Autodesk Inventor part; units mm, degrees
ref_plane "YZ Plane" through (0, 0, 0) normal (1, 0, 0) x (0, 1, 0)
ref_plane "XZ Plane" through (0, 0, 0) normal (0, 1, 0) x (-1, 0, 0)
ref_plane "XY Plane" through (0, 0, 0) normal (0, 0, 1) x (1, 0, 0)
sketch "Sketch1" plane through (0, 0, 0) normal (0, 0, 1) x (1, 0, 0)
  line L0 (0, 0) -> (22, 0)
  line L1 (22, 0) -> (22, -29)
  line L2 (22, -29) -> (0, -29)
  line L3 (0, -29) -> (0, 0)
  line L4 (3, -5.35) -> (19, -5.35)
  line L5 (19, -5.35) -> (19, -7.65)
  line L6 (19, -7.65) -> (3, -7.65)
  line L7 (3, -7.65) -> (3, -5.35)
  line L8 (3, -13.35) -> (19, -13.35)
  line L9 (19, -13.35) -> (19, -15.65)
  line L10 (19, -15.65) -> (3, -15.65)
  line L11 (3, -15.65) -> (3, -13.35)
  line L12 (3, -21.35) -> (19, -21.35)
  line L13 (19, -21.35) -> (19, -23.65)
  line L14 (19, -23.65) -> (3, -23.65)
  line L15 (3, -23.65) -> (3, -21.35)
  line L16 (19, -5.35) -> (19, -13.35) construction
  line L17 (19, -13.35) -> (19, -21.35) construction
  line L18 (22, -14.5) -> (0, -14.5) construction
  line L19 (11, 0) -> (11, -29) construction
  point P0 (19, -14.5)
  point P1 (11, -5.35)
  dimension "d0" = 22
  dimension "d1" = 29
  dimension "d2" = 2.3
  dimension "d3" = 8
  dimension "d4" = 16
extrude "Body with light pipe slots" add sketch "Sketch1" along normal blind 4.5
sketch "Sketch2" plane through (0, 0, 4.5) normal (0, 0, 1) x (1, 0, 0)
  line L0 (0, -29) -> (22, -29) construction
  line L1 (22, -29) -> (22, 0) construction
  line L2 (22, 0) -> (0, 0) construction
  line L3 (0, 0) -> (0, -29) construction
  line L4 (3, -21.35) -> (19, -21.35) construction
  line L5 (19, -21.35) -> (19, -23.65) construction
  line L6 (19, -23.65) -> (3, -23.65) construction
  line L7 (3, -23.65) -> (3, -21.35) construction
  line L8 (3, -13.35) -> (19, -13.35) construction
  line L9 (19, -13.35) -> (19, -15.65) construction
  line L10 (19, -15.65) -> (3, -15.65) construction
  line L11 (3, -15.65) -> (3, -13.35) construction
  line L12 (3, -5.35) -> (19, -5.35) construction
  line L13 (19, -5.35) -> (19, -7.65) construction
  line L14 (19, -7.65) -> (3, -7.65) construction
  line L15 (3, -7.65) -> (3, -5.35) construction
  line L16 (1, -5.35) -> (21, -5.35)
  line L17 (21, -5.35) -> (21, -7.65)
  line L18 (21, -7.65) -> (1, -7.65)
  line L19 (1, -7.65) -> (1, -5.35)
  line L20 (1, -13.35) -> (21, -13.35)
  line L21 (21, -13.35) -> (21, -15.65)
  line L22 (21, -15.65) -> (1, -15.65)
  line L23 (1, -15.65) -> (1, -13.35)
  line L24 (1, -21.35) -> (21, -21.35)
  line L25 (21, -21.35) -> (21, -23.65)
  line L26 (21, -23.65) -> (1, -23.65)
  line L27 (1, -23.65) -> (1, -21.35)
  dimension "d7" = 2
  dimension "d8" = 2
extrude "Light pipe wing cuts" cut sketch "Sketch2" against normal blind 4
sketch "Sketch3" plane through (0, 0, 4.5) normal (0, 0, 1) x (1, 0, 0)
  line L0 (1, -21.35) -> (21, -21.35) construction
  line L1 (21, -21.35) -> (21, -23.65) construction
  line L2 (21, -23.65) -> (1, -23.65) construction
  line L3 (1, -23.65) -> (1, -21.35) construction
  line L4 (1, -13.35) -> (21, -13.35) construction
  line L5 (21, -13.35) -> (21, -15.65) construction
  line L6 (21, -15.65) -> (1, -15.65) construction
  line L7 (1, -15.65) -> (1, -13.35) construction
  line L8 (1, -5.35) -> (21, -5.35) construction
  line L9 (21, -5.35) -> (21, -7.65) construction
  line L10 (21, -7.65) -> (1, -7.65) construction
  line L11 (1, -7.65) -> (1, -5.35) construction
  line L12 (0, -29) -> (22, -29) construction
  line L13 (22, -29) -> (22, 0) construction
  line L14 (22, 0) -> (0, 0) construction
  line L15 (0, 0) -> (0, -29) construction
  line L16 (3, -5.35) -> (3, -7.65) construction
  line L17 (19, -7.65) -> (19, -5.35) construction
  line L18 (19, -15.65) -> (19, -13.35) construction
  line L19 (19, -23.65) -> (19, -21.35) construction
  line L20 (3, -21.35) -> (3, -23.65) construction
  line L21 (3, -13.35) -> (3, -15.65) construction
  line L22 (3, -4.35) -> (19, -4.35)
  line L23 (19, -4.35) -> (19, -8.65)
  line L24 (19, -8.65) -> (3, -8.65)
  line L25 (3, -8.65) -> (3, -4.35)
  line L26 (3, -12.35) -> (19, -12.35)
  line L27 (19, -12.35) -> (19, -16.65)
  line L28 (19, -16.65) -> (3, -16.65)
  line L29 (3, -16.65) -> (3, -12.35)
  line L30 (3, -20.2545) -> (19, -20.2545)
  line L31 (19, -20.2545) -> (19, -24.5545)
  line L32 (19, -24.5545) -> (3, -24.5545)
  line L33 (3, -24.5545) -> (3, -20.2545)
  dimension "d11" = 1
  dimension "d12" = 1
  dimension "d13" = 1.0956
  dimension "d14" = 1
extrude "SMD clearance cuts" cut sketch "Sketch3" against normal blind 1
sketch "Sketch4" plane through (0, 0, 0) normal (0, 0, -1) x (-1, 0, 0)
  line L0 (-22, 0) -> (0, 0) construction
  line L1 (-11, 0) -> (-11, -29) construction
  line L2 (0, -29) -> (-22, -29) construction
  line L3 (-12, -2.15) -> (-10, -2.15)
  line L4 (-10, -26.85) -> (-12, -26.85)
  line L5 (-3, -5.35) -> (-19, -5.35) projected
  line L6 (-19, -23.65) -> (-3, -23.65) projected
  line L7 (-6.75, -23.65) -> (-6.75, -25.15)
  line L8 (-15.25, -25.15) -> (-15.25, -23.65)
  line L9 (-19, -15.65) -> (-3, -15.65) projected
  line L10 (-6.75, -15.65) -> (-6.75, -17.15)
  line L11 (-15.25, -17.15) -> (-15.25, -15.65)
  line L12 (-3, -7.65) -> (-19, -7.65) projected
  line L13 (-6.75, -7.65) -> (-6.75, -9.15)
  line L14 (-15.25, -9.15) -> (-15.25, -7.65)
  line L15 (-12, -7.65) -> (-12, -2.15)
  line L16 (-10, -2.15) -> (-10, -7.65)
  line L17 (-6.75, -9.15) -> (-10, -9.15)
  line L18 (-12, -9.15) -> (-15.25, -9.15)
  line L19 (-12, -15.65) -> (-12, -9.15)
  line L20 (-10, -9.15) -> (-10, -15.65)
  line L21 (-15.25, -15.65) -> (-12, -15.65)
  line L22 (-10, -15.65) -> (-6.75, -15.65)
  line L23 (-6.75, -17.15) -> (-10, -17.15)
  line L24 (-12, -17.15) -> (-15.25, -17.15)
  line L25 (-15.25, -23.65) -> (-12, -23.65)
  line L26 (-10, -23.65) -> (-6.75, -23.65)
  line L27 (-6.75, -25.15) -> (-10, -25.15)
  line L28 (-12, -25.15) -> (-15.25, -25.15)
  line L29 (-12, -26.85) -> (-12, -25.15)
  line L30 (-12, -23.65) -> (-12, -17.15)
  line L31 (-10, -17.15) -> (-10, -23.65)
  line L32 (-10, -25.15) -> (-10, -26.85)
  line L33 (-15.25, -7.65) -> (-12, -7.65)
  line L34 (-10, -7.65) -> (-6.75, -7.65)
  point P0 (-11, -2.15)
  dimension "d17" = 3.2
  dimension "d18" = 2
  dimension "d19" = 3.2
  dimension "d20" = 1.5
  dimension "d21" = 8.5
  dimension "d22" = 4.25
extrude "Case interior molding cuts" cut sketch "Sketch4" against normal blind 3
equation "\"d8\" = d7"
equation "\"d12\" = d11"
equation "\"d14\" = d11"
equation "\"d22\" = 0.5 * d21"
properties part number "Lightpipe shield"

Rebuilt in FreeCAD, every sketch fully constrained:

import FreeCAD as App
import Part
import Sketcher
from FreeCAD import Vector

doc = App.newDocument("Part")
body = doc.addObject("PartDesign::Body", "Body")

sketch1 = body.newObject("Sketcher::SketchObject", "Sketch")
sketch1.AttachmentSupport = (doc.getObject("XY_Plane"), [""])
sketch1.MapMode = "FlatFace"
sketch1.addGeometry(Part.LineSegment(Vector(22, 0, 0), Vector(0, 0, 0)), False)
sketch1.addGeometry(Part.LineSegment(Vector(0, 0, 0), Vector(0, -29, 0)), False)
sketch1.addGeometry(Part.LineSegment(Vector(0, -29, 0), Vector(22, -29, 0)), False)
sketch1.addGeometry(Part.LineSegment(Vector(22, -29, 0), Vector(22, 0, 0)), False)
sketch1.addGeometry(Part.LineSegment(Vector(3, -23.6, 0), Vector(3, -21.4, 0)), False)
sketch1.addGeometry(Part.LineSegment(Vector(3, -21.4, 0), Vector(19, -21.4, 0)), False)
sketch1.addGeometry(Part.LineSegment(Vector(19, -21.4, 0), Vector(19, -23.6, 0)), False)
sketch1.addGeometry(Part.LineSegment(Vector(19, -23.6, 0), Vector(3, -23.6, 0)), False)
sketch1.addGeometry(Part.LineSegment(Vector(3, -15.7, 0), Vector(3, -13.3, 0)), False)
sketch1.addGeometry(Part.LineSegment(Vector(3, -13.3, 0), Vector(19, -13.3, 0)), False)
sketch1.addGeometry(Part.LineSegment(Vector(19, -13.3, 0), Vector(19, -15.7, 0)), False)
sketch1.addGeometry(Part.LineSegment(Vector(19, -15.7, 0), Vector(3, -15.7, 0)), False)
sketch1.addGeometry(Part.LineSegment(Vector(3, -7.7, 0), Vector(3, -5.3, 0)), False)
sketch1.addGeometry(Part.LineSegment(Vector(3, -5.3, 0), Vector(19, -5.3, 0)), False)
sketch1.addGeometry(Part.LineSegment(Vector(19, -5.3, 0), Vector(19, -7.7, 0)), False)
sketch1.addGeometry(Part.LineSegment(Vector(19, -7.7, 0), Vector(3, -7.7, 0)), False)
sketch1.addConstraint(Sketcher.Constraint("Coincident", 0, 2, 1, 1))
sketch1.addConstraint(Sketcher.Constraint("Coincident", 1, 2, 2, 1))
sketch1.addConstraint(Sketcher.Constraint("Coincident", 2, 2, 3, 1))
sketch1.addConstraint(Sketcher.Constraint("Coincident", 3, 2, 0, 1))
sketch1.addConstraint(Sketcher.Constraint("Coincident", 4, 2, 5, 1))
sketch1.addConstraint(Sketcher.Constraint("Coincident", 5, 2, 6, 1))
sketch1.addConstraint(Sketcher.Constraint("Coincident", 6, 2, 7, 1))
sketch1.addConstraint(Sketcher.Constraint("Coincident", 7, 2, 4, 1))
sketch1.addConstraint(Sketcher.Constraint("Coincident", 8, 2, 9, 1))
sketch1.addConstraint(Sketcher.Constraint("Coincident", 9, 2, 10, 1))
sketch1.addConstraint(Sketcher.Constraint("Coincident", 10, 2, 11, 1))
sketch1.addConstraint(Sketcher.Constraint("Coincident", 11, 2, 8, 1))
sketch1.addConstraint(Sketcher.Constraint("Coincident", 12, 2, 13, 1))
sketch1.addConstraint(Sketcher.Constraint("Coincident", 13, 2, 14, 1))
sketch1.addConstraint(Sketcher.Constraint("Coincident", 14, 2, 15, 1))
sketch1.addConstraint(Sketcher.Constraint("Coincident", 15, 2, 12, 1))
sketch1.addConstraint(Sketcher.Constraint("Horizontal", 0))
sketch1.addConstraint(Sketcher.Constraint("Vertical", 1))
sketch1.addConstraint(Sketcher.Constraint("Horizontal", 2))
sketch1.addConstraint(Sketcher.Constraint("Vertical", 3))
sketch1.addConstraint(Sketcher.Constraint("Vertical", 4))
sketch1.addConstraint(Sketcher.Constraint("Horizontal", 5))
sketch1.addConstraint(Sketcher.Constraint("Vertical", 6))
sketch1.addConstraint(Sketcher.Constraint("Horizontal", 7))
sketch1.addConstraint(Sketcher.Constraint("Vertical", 8))
sketch1.addConstraint(Sketcher.Constraint("Horizontal", 9))
sketch1.addConstraint(Sketcher.Constraint("Vertical", 10))
sketch1.addConstraint(Sketcher.Constraint("Horizontal", 11))
sketch1.addConstraint(Sketcher.Constraint("Vertical", 12))
sketch1.addConstraint(Sketcher.Constraint("Horizontal", 13))
sketch1.addConstraint(Sketcher.Constraint("Vertical", 14))
sketch1.addConstraint(Sketcher.Constraint("Horizontal", 15))
sketch1.addConstraint(Sketcher.Constraint("Coincident", 0, 2, -1, 1))
sketch1.addConstraint(Sketcher.Constraint("Vertical", 7, 2, 8, 2))
sketch1.addConstraint(Sketcher.Constraint("Vertical", 6, 2, 9, 2))
sketch1.addConstraint(Sketcher.Constraint("Vertical", 11, 2, 12, 2))
sketch1.addConstraint(Sketcher.Constraint("Vertical", 10, 2, 13, 2))
sketch1.addConstraint(Sketcher.Constraint("Equal", 6, 8))
sketch1.addConstraint(Sketcher.Constraint("Equal", 10, 12))
sketch1.addConstraint(Sketcher.Constraint("DistanceX", 0, 2, 0, 1, 22.0))
sketch1.addConstraint(Sketcher.Constraint("DistanceX", 5, 1, 5, 2, 16.0))
sketch1.addConstraint(Sketcher.Constraint("DistanceY", 1, 2, 1, 1, 29.0))
sketch1.addConstraint(Sketcher.Constraint("DistanceY", 4, 1, 4, 2, 2.3))
sketch1.addConstraint(Sketcher.Constraint("DistanceY", 4, 2, 8, 2, 8.0))
sketch1.addConstraint(Sketcher.Constraint("DistanceY", 8, 2, 12, 2, 8.0))
sketch1.addConstraint(Sketcher.Constraint("DistanceX", -1, 1, 4, 2, 3.0))
sketch1.addConstraint(Sketcher.Constraint("DistanceY", 4, 2, -1, 1, 21.35))
pad1 = body.newObject("PartDesign::Pad", "Pad")
pad1.Profile = sketch1
pad1.Length = 4.5

sketch2 = body.newObject("Sketcher::SketchObject", "Sketch001")
sketch2.AttachmentSupport = (doc.getObject("XY_Plane"), [""])
sketch2.MapMode = "FlatFace"
sketch2.AttachmentOffset = App.Placement(Vector(0, 0, 4.5), App.Rotation())
sketch2.addGeometry(Part.LineSegment(Vector(21, -5.3, 0), Vector(1, -5.3, 0)), False)
sketch2.addGeometry(Part.LineSegment(Vector(1, -5.3, 0), Vector(1, -7.7, 0)), False)
sketch2.addGeometry(Part.LineSegment(Vector(1, -7.7, 0), Vector(21, -7.7, 0)), False)
sketch2.addGeometry(Part.LineSegment(Vector(21, -7.7, 0), Vector(21, -5.3, 0)), False)
sketch2.addGeometry(Part.LineSegment(Vector(21, -13.3, 0), Vector(1, -13.3, 0)), False)
sketch2.addGeometry(Part.LineSegment(Vector(1, -13.3, 0), Vector(1, -15.7, 0)), False)
sketch2.addGeometry(Part.LineSegment(Vector(1, -15.7, 0), Vector(21, -15.7, 0)), False)
sketch2.addGeometry(Part.LineSegment(Vector(21, -15.7, 0), Vector(21, -13.3, 0)), False)
sketch2.addGeometry(Part.LineSegment(Vector(21, -21.4, 0), Vector(1, -21.4, 0)), False)
sketch2.addGeometry(Part.LineSegment(Vector(1, -21.4, 0), Vector(1, -23.6, 0)), False)
sketch2.addGeometry(Part.LineSegment(Vector(1, -23.6, 0), Vector(21, -23.6, 0)), False)
sketch2.addGeometry(Part.LineSegment(Vector(21, -23.6, 0), Vector(21, -21.4, 0)), False)
sketch2.addConstraint(Sketcher.Constraint("Coincident", 0, 2, 1, 1))
sketch2.addConstraint(Sketcher.Constraint("Coincident", 1, 2, 2, 1))
sketch2.addConstraint(Sketcher.Constraint("Coincident", 2, 2, 3, 1))
sketch2.addConstraint(Sketcher.Constraint("Coincident", 3, 2, 0, 1))
sketch2.addConstraint(Sketcher.Constraint("Coincident", 4, 2, 5, 1))
sketch2.addConstraint(Sketcher.Constraint("Coincident", 5, 2, 6, 1))
sketch2.addConstraint(Sketcher.Constraint("Coincident", 6, 2, 7, 1))
sketch2.addConstraint(Sketcher.Constraint("Coincident", 7, 2, 4, 1))
sketch2.addConstraint(Sketcher.Constraint("Coincident", 8, 2, 9, 1))
sketch2.addConstraint(Sketcher.Constraint("Coincident", 9, 2, 10, 1))
sketch2.addConstraint(Sketcher.Constraint("Coincident", 10, 2, 11, 1))
sketch2.addConstraint(Sketcher.Constraint("Coincident", 11, 2, 8, 1))
sketch2.addConstraint(Sketcher.Constraint("Horizontal", 0))
sketch2.addConstraint(Sketcher.Constraint("Vertical", 1))
sketch2.addConstraint(Sketcher.Constraint("Horizontal", 2))
sketch2.addConstraint(Sketcher.Constraint("Vertical", 3))
sketch2.addConstraint(Sketcher.Constraint("Horizontal", 4))
sketch2.addConstraint(Sketcher.Constraint("Vertical", 5))
sketch2.addConstraint(Sketcher.Constraint("Horizontal", 6))
sketch2.addConstraint(Sketcher.Constraint("Vertical", 7))
sketch2.addConstraint(Sketcher.Constraint("Horizontal", 8))
sketch2.addConstraint(Sketcher.Constraint("Vertical", 9))
sketch2.addConstraint(Sketcher.Constraint("Horizontal", 10))
sketch2.addConstraint(Sketcher.Constraint("Vertical", 11))
sketch2.addConstraint(Sketcher.Constraint("Vertical", 1, 2, 4, 2))
sketch2.addConstraint(Sketcher.Constraint("Vertical", 3, 2, 6, 2))
sketch2.addConstraint(Sketcher.Constraint("Vertical", 5, 2, 8, 2))
sketch2.addConstraint(Sketcher.Constraint("Vertical", 7, 2, 10, 2))
sketch2.addConstraint(Sketcher.Constraint("Equal", 3, 5))
sketch2.addConstraint(Sketcher.Constraint("Equal", 7, 9))
sketch2.addConstraint(Sketcher.Constraint("DistanceX", 0, 2, 0, 1, 20.0))
sketch2.addConstraint(Sketcher.Constraint("DistanceY", 1, 2, 1, 1, 2.3))
sketch2.addConstraint(Sketcher.Constraint("DistanceX", -1, 1, 0, 2, 1.0))
sketch2.addConstraint(Sketcher.Constraint("DistanceY", 4, 2, 0, 2, 8.0))
sketch2.addConstraint(Sketcher.Constraint("DistanceY", 8, 2, 4, 2, 8.0))
sketch2.addConstraint(Sketcher.Constraint("DistanceY", 0, 2, -1, 1, 5.35))
pocket1 = body.newObject("PartDesign::Pocket", "Pocket")
pocket1.Profile = sketch2
pocket1.Length = 4

sketch3 = body.newObject("Sketcher::SketchObject", "Sketch002")
sketch3.AttachmentSupport = (doc.getObject("XY_Plane"), [""])
sketch3.MapMode = "FlatFace"
sketch3.AttachmentOffset = App.Placement(Vector(0, 0, 4.5), App.Rotation())
sketch3.addGeometry(Part.LineSegment(Vector(19, -4.3, 0), Vector(3, -4.3, 0)), False)
sketch3.addGeometry(Part.LineSegment(Vector(3, -4.3, 0), Vector(3, -8.7, 0)), False)
sketch3.addGeometry(Part.LineSegment(Vector(3, -8.7, 0), Vector(19, -8.7, 0)), False)
sketch3.addGeometry(Part.LineSegment(Vector(19, -8.7, 0), Vector(19, -4.3, 0)), False)
sketch3.addGeometry(Part.LineSegment(Vector(19, -12.3, 0), Vector(3, -12.3, 0)), False)
sketch3.addGeometry(Part.LineSegment(Vector(3, -12.3, 0), Vector(3, -16.6, 0)), False)
sketch3.addGeometry(Part.LineSegment(Vector(3, -16.6, 0), Vector(19, -16.6, 0)), False)
sketch3.addGeometry(Part.LineSegment(Vector(19, -16.6, 0), Vector(19, -12.3, 0)), False)
sketch3.addGeometry(Part.LineSegment(Vector(19, -20.3, 0), Vector(3, -20.3, 0)), False)
sketch3.addGeometry(Part.LineSegment(Vector(3, -20.3, 0), Vector(3, -24.6, 0)), False)
sketch3.addGeometry(Part.LineSegment(Vector(3, -24.6, 0), Vector(19, -24.6, 0)), False)
sketch3.addGeometry(Part.LineSegment(Vector(19, -24.6, 0), Vector(19, -20.3, 0)), False)
sketch3.addConstraint(Sketcher.Constraint("Coincident", 0, 2, 1, 1))
sketch3.addConstraint(Sketcher.Constraint("Coincident", 1, 2, 2, 1))
sketch3.addConstraint(Sketcher.Constraint("Coincident", 2, 2, 3, 1))
sketch3.addConstraint(Sketcher.Constraint("Coincident", 3, 2, 0, 1))
sketch3.addConstraint(Sketcher.Constraint("Coincident", 4, 2, 5, 1))
sketch3.addConstraint(Sketcher.Constraint("Coincident", 5, 2, 6, 1))
sketch3.addConstraint(Sketcher.Constraint("Coincident", 6, 2, 7, 1))
sketch3.addConstraint(Sketcher.Constraint("Coincident", 7, 2, 4, 1))
sketch3.addConstraint(Sketcher.Constraint("Coincident", 8, 2, 9, 1))
sketch3.addConstraint(Sketcher.Constraint("Coincident", 9, 2, 10, 1))
sketch3.addConstraint(Sketcher.Constraint("Coincident", 10, 2, 11, 1))
sketch3.addConstraint(Sketcher.Constraint("Coincident", 11, 2, 8, 1))
sketch3.addConstraint(Sketcher.Constraint("Horizontal", 0))
sketch3.addConstraint(Sketcher.Constraint("Vertical", 1))
sketch3.addConstraint(Sketcher.Constraint("Horizontal", 2))
sketch3.addConstraint(Sketcher.Constraint("Vertical", 3))
sketch3.addConstraint(Sketcher.Constraint("Horizontal", 4))
sketch3.addConstraint(Sketcher.Constraint("Vertical", 5))
sketch3.addConstraint(Sketcher.Constraint("Horizontal", 6))
sketch3.addConstraint(Sketcher.Constraint("Vertical", 7))
sketch3.addConstraint(Sketcher.Constraint("Horizontal", 8))
sketch3.addConstraint(Sketcher.Constraint("Vertical", 9))
sketch3.addConstraint(Sketcher.Constraint("Horizontal", 10))
sketch3.addConstraint(Sketcher.Constraint("Vertical", 11))
sketch3.addConstraint(Sketcher.Constraint("Vertical", 1, 2, 4, 2))
sketch3.addConstraint(Sketcher.Constraint("Vertical", 3, 2, 6, 2))
sketch3.addConstraint(Sketcher.Constraint("Vertical", 5, 2, 8, 2))
sketch3.addConstraint(Sketcher.Constraint("Vertical", 7, 2, 10, 2))
sketch3.addConstraint(Sketcher.Constraint("Equal", 3, 5))
sketch3.addConstraint(Sketcher.Constraint("Equal", 7, 9))
sketch3.addConstraint(Sketcher.Constraint("DistanceX", 0, 2, 0, 1, 16.0))
sketch3.addConstraint(Sketcher.Constraint("DistanceY", 1, 2, 1, 1, 4.3))
sketch3.addConstraint(Sketcher.Constraint("DistanceX", -1, 1, 0, 2, 3.0))
sketch3.addConstraint(Sketcher.Constraint("DistanceY", 4, 2, 0, 2, 8.0))
sketch3.addConstraint(Sketcher.Constraint("DistanceY", 0, 2, -1, 1, 4.35))
sketch3.addConstraint(Sketcher.Constraint("DistanceY", 8, 2, -1, 1, 20.2545))
pocket2 = body.newObject("PartDesign::Pocket", "Pocket001")
pocket2.Profile = sketch3
pocket2.Length = 1

sketch4 = body.newObject("Sketcher::SketchObject", "Sketch003")
sketch4.AttachmentSupport = (doc.getObject("XY_Plane"), [""])
sketch4.MapMode = "FlatFace"
sketch4.addGeometry(Part.LineSegment(Vector(10, -2.1, 0), Vector(12, -2.1, 0)), False)
sketch4.addGeometry(Part.LineSegment(Vector(12, -2.1, 0), Vector(12, -7.7, 0)), False)
sketch4.addGeometry(Part.LineSegment(Vector(12, -7.7, 0), Vector(15.2, -7.7, 0)), False)
sketch4.addGeometry(Part.LineSegment(Vector(15.2, -7.7, 0), Vector(15.2, -9.2, 0)), False)
sketch4.addGeometry(Part.LineSegment(Vector(15.2, -9.2, 0), Vector(12, -9.2, 0)), False)
sketch4.addGeometry(Part.LineSegment(Vector(12, -9.2, 0), Vector(12, -15.7, 0)), False)
sketch4.addGeometry(Part.LineSegment(Vector(12, -15.7, 0), Vector(15.2, -15.7, 0)), False)
sketch4.addGeometry(Part.LineSegment(Vector(15.2, -15.7, 0), Vector(15.2, -17.1, 0)), False)
sketch4.addGeometry(Part.LineSegment(Vector(15.2, -17.1, 0), Vector(12, -17.1, 0)), False)
sketch4.addGeometry(Part.LineSegment(Vector(12, -17.1, 0), Vector(12, -23.6, 0)), False)
sketch4.addGeometry(Part.LineSegment(Vector(12, -23.6, 0), Vector(15.2, -23.6, 0)), False)
sketch4.addGeometry(Part.LineSegment(Vector(15.2, -23.6, 0), Vector(15.2, -25.1, 0)), False)
sketch4.addGeometry(Part.LineSegment(Vector(15.2, -25.1, 0), Vector(12, -25.1, 0)), False)
sketch4.addGeometry(Part.LineSegment(Vector(12, -25.1, 0), Vector(12, -26.9, 0)), False)
sketch4.addGeometry(Part.LineSegment(Vector(12, -26.9, 0), Vector(10, -26.9, 0)), False)
sketch4.addGeometry(Part.LineSegment(Vector(10, -26.9, 0), Vector(10, -25.1, 0)), False)
sketch4.addGeometry(Part.LineSegment(Vector(10, -25.1, 0), Vector(6.8, -25.1, 0)), False)
sketch4.addGeometry(Part.LineSegment(Vector(6.8, -25.1, 0), Vector(6.8, -23.6, 0)), False)
sketch4.addGeometry(Part.LineSegment(Vector(6.8, -23.6, 0), Vector(10, -23.6, 0)), False)
sketch4.addGeometry(Part.LineSegment(Vector(10, -23.6, 0), Vector(10, -17.1, 0)), False)
sketch4.addGeometry(Part.LineSegment(Vector(10, -17.1, 0), Vector(6.8, -17.1, 0)), False)
sketch4.addGeometry(Part.LineSegment(Vector(6.8, -17.1, 0), Vector(6.8, -15.7, 0)), False)
sketch4.addGeometry(Part.LineSegment(Vector(6.8, -15.7, 0), Vector(10, -15.7, 0)), False)
sketch4.addGeometry(Part.LineSegment(Vector(10, -15.7, 0), Vector(10, -9.2, 0)), False)
sketch4.addGeometry(Part.LineSegment(Vector(10, -9.2, 0), Vector(6.8, -9.2, 0)), False)
sketch4.addGeometry(Part.LineSegment(Vector(6.8, -9.2, 0), Vector(6.8, -7.7, 0)), False)
sketch4.addGeometry(Part.LineSegment(Vector(6.8, -7.7, 0), Vector(10, -7.7, 0)), False)
sketch4.addGeometry(Part.LineSegment(Vector(10, -7.7, 0), Vector(10, -2.1, 0)), False)
sketch4.addConstraint(Sketcher.Constraint("Coincident", 0, 2, 1, 1))
sketch4.addConstraint(Sketcher.Constraint("Coincident", 1, 2, 2, 1))
sketch4.addConstraint(Sketcher.Constraint("Coincident", 2, 2, 3, 1))
sketch4.addConstraint(Sketcher.Constraint("Coincident", 3, 2, 4, 1))
sketch4.addConstraint(Sketcher.Constraint("Coincident", 4, 2, 5, 1))
sketch4.addConstraint(Sketcher.Constraint("Coincident", 5, 2, 6, 1))
sketch4.addConstraint(Sketcher.Constraint("Coincident", 6, 2, 7, 1))
sketch4.addConstraint(Sketcher.Constraint("Coincident", 7, 2, 8, 1))
sketch4.addConstraint(Sketcher.Constraint("Coincident", 8, 2, 9, 1))
sketch4.addConstraint(Sketcher.Constraint("Coincident", 9, 2, 10, 1))
sketch4.addConstraint(Sketcher.Constraint("Coincident", 10, 2, 11, 1))
sketch4.addConstraint(Sketcher.Constraint("Coincident", 11, 2, 12, 1))
sketch4.addConstraint(Sketcher.Constraint("Coincident", 12, 2, 13, 1))
sketch4.addConstraint(Sketcher.Constraint("Coincident", 13, 2, 14, 1))
sketch4.addConstraint(Sketcher.Constraint("Coincident", 14, 2, 15, 1))
sketch4.addConstraint(Sketcher.Constraint("Coincident", 15, 2, 16, 1))
sketch4.addConstraint(Sketcher.Constraint("Coincident", 16, 2, 17, 1))
sketch4.addConstraint(Sketcher.Constraint("Coincident", 17, 2, 18, 1))
sketch4.addConstraint(Sketcher.Constraint("Coincident", 18, 2, 19, 1))
sketch4.addConstraint(Sketcher.Constraint("Coincident", 19, 2, 20, 1))
sketch4.addConstraint(Sketcher.Constraint("Coincident", 20, 2, 21, 1))
sketch4.addConstraint(Sketcher.Constraint("Coincident", 21, 2, 22, 1))
sketch4.addConstraint(Sketcher.Constraint("Coincident", 22, 2, 23, 1))
sketch4.addConstraint(Sketcher.Constraint("Coincident", 23, 2, 24, 1))
sketch4.addConstraint(Sketcher.Constraint("Coincident", 24, 2, 25, 1))
sketch4.addConstraint(Sketcher.Constraint("Coincident", 25, 2, 26, 1))
sketch4.addConstraint(Sketcher.Constraint("Coincident", 26, 2, 27, 1))
sketch4.addConstraint(Sketcher.Constraint("Coincident", 27, 2, 0, 1))
sketch4.addConstraint(Sketcher.Constraint("Horizontal", 0))
sketch4.addConstraint(Sketcher.Constraint("Vertical", 1))
sketch4.addConstraint(Sketcher.Constraint("Horizontal", 2))
sketch4.addConstraint(Sketcher.Constraint("Vertical", 3))
sketch4.addConstraint(Sketcher.Constraint("Horizontal", 4))
sketch4.addConstraint(Sketcher.Constraint("Vertical", 5))
sketch4.addConstraint(Sketcher.Constraint("Horizontal", 6))
sketch4.addConstraint(Sketcher.Constraint("Vertical", 7))
sketch4.addConstraint(Sketcher.Constraint("Horizontal", 8))
sketch4.addConstraint(Sketcher.Constraint("Vertical", 9))
sketch4.addConstraint(Sketcher.Constraint("Horizontal", 10))
sketch4.addConstraint(Sketcher.Constraint("Vertical", 11))
sketch4.addConstraint(Sketcher.Constraint("Horizontal", 12))
sketch4.addConstraint(Sketcher.Constraint("Vertical", 13))
sketch4.addConstraint(Sketcher.Constraint("Horizontal", 14))
sketch4.addConstraint(Sketcher.Constraint("Vertical", 15))
sketch4.addConstraint(Sketcher.Constraint("Horizontal", 16))
sketch4.addConstraint(Sketcher.Constraint("Vertical", 17))
sketch4.addConstraint(Sketcher.Constraint("Horizontal", 18))
sketch4.addConstraint(Sketcher.Constraint("Vertical", 19))
sketch4.addConstraint(Sketcher.Constraint("Horizontal", 20))
sketch4.addConstraint(Sketcher.Constraint("Vertical", 21))
sketch4.addConstraint(Sketcher.Constraint("Horizontal", 22))
sketch4.addConstraint(Sketcher.Constraint("Vertical", 23))
sketch4.addConstraint(Sketcher.Constraint("Horizontal", 24))
sketch4.addConstraint(Sketcher.Constraint("Vertical", 25))
sketch4.addConstraint(Sketcher.Constraint("Horizontal", 26))
sketch4.addConstraint(Sketcher.Constraint("Vertical", 27))
sketch4.addConstraint(Sketcher.Constraint("Horizontal", 12, 2, 15, 2))
sketch4.addConstraint(Sketcher.Constraint("Horizontal", 10, 2, 17, 2))
sketch4.addConstraint(Sketcher.Constraint("Horizontal", 8, 2, 19, 2))
sketch4.addConstraint(Sketcher.Constraint("Horizontal", 6, 2, 21, 2))
sketch4.addConstraint(Sketcher.Constraint("Horizontal", 4, 2, 23, 2))
sketch4.addConstraint(Sketcher.Constraint("Horizontal", 2, 2, 25, 2))
sketch4.addConstraint(Sketcher.Constraint("Vertical", 1, 2, 4, 2))
sketch4.addConstraint(Sketcher.Constraint("Vertical", 3, 2, 6, 2))
sketch4.addConstraint(Sketcher.Constraint("Vertical", 5, 2, 8, 2))
sketch4.addConstraint(Sketcher.Constraint("Vertical", 7, 2, 10, 2))
sketch4.addConstraint(Sketcher.Constraint("Vertical", 9, 2, 12, 2))
sketch4.addConstraint(Sketcher.Constraint("Vertical", 15, 2, 18, 2))
sketch4.addConstraint(Sketcher.Constraint("Vertical", 17, 2, 20, 2))
sketch4.addConstraint(Sketcher.Constraint("Vertical", 19, 2, 22, 2))
sketch4.addConstraint(Sketcher.Constraint("Vertical", 21, 2, 24, 2))
sketch4.addConstraint(Sketcher.Constraint("Vertical", 23, 2, 26, 2))
sketch4.addConstraint(Sketcher.Constraint("Equal", 12, 16))
sketch4.addConstraint(Sketcher.Constraint("Equal", 3, 7))
sketch4.addConstraint(Sketcher.Constraint("Equal", 5, 9))
sketch4.addConstraint(Sketcher.Constraint("Equal", 7, 11))
sketch4.addConstraint(Sketcher.Constraint("DistanceX", 0, 1, 0, 2, 2.0))
sketch4.addConstraint(Sketcher.Constraint("DistanceY", 3, 2, 3, 1, 1.5))
sketch4.addConstraint(Sketcher.Constraint("DistanceY", 13, 2, 9, 2, 3.2))
sketch4.addConstraint(Sketcher.Constraint("DistanceY", 1, 2, 1, 1, 5.5))
sketch4.addConstraint(Sketcher.Constraint("DistanceY", 5, 2, 5, 1, 6.5))
sketch4.addConstraint(Sketcher.Constraint("DistanceX", -1, 1, 0, 2, 12.0))
sketch4.addConstraint(Sketcher.Constraint("DistanceX", 2, 1, 2, 2, 3.25))
sketch4.addConstraint(Sketcher.Constraint("DistanceY", 0, 2, -1, 1, 2.15))
pocket3 = body.newObject("PartDesign::Pocket", "Pocket002")
pocket3.Profile = sketch4
pocket3.Length = 3
pocket3.Reversed = True

doc.recompute()
